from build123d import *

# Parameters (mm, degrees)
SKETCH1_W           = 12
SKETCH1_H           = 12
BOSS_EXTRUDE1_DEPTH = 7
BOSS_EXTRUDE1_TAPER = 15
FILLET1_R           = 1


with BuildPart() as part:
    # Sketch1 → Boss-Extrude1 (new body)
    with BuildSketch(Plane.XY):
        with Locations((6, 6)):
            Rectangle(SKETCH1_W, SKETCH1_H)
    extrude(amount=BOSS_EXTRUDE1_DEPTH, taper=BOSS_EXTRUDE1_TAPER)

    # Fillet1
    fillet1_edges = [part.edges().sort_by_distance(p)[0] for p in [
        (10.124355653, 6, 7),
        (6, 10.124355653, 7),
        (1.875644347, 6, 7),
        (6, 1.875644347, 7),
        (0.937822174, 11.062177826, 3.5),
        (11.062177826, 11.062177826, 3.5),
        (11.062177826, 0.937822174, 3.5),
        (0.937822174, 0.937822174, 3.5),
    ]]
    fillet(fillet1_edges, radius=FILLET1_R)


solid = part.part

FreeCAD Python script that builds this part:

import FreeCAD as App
import Part
import Sketcher
from FreeCAD import Vector


def edges_at(feature, points):
    """Names of the edges that pass closest to the given points."""
    edges = feature.Shape.Edges
    near = lambda p: min(range(len(edges)), key=lambda i: edges[i].distToShape(Part.Vertex(*p))[0])
    return sorted({f"Edge{near(p) + 1}" for p in points})

doc = App.newDocument("Part")
body = doc.addObject("PartDesign::Body", "Body")

# Sketch on XY plane
sketch1 = body.newObject("Sketcher::SketchObject", "Sketch")
sketch1.AttachmentSupport = (doc.getObject("XY_Plane"), [""])
sketch1.MapMode = "FlatFace"
sketch1.addGeometry([
    Part.LineSegment(Vector(0, 12, 0), Vector(0, 0, 0)),
    Part.LineSegment(Vector(0, 0, 0), Vector(12, 0, 0)),
    Part.LineSegment(Vector(12, 0, 0), Vector(12, 12, 0)),
    Part.LineSegment(Vector(12, 12, 0), Vector(0, 12, 0)),
], False)
sketch1.addConstraint([
    Sketcher.Constraint("Coincident", 0, 2, 1, 1),
    Sketcher.Constraint("Coincident", 1, 2, 2, 1),
    Sketcher.Constraint("Coincident", 2, 2, 3, 1),
    Sketcher.Constraint("Coincident", 3, 2, 0, 1),
    Sketcher.Constraint("Vertical", 0),
    Sketcher.Constraint("Horizontal", 1),
    Sketcher.Constraint("Vertical", 2),
    Sketcher.Constraint("Horizontal", 3),
    Sketcher.Constraint("Coincident", 0, 2, -1, 1),
    Sketcher.Constraint("Equal", 3, 0),
    Sketcher.Constraint("DistanceX", 1, 1, 1, 2, 12.0),
])
pad1 = body.newObject("PartDesign::Pad", "Pad")
pad1.Profile = sketch1
pad1.Length = 7
pad1.TaperAngle = -15
doc.recompute()

fillet = body.newObject("PartDesign::Fillet", "Fillet")
fillet.Base = (pad1, edges_at(pad1, [
    (10.124, 6, 7),
    (6, 10.124, 7),
    (1.876, 6, 7),
    (6, 1.876, 7),
    (0.938, 11.062, 3.5),
    (11.062, 11.062, 3.5),
    (11.062, 0.938, 3.5),
    (0.938, 0.938, 3.5),
]))
fillet.Radius = 1

doc.recompute()
